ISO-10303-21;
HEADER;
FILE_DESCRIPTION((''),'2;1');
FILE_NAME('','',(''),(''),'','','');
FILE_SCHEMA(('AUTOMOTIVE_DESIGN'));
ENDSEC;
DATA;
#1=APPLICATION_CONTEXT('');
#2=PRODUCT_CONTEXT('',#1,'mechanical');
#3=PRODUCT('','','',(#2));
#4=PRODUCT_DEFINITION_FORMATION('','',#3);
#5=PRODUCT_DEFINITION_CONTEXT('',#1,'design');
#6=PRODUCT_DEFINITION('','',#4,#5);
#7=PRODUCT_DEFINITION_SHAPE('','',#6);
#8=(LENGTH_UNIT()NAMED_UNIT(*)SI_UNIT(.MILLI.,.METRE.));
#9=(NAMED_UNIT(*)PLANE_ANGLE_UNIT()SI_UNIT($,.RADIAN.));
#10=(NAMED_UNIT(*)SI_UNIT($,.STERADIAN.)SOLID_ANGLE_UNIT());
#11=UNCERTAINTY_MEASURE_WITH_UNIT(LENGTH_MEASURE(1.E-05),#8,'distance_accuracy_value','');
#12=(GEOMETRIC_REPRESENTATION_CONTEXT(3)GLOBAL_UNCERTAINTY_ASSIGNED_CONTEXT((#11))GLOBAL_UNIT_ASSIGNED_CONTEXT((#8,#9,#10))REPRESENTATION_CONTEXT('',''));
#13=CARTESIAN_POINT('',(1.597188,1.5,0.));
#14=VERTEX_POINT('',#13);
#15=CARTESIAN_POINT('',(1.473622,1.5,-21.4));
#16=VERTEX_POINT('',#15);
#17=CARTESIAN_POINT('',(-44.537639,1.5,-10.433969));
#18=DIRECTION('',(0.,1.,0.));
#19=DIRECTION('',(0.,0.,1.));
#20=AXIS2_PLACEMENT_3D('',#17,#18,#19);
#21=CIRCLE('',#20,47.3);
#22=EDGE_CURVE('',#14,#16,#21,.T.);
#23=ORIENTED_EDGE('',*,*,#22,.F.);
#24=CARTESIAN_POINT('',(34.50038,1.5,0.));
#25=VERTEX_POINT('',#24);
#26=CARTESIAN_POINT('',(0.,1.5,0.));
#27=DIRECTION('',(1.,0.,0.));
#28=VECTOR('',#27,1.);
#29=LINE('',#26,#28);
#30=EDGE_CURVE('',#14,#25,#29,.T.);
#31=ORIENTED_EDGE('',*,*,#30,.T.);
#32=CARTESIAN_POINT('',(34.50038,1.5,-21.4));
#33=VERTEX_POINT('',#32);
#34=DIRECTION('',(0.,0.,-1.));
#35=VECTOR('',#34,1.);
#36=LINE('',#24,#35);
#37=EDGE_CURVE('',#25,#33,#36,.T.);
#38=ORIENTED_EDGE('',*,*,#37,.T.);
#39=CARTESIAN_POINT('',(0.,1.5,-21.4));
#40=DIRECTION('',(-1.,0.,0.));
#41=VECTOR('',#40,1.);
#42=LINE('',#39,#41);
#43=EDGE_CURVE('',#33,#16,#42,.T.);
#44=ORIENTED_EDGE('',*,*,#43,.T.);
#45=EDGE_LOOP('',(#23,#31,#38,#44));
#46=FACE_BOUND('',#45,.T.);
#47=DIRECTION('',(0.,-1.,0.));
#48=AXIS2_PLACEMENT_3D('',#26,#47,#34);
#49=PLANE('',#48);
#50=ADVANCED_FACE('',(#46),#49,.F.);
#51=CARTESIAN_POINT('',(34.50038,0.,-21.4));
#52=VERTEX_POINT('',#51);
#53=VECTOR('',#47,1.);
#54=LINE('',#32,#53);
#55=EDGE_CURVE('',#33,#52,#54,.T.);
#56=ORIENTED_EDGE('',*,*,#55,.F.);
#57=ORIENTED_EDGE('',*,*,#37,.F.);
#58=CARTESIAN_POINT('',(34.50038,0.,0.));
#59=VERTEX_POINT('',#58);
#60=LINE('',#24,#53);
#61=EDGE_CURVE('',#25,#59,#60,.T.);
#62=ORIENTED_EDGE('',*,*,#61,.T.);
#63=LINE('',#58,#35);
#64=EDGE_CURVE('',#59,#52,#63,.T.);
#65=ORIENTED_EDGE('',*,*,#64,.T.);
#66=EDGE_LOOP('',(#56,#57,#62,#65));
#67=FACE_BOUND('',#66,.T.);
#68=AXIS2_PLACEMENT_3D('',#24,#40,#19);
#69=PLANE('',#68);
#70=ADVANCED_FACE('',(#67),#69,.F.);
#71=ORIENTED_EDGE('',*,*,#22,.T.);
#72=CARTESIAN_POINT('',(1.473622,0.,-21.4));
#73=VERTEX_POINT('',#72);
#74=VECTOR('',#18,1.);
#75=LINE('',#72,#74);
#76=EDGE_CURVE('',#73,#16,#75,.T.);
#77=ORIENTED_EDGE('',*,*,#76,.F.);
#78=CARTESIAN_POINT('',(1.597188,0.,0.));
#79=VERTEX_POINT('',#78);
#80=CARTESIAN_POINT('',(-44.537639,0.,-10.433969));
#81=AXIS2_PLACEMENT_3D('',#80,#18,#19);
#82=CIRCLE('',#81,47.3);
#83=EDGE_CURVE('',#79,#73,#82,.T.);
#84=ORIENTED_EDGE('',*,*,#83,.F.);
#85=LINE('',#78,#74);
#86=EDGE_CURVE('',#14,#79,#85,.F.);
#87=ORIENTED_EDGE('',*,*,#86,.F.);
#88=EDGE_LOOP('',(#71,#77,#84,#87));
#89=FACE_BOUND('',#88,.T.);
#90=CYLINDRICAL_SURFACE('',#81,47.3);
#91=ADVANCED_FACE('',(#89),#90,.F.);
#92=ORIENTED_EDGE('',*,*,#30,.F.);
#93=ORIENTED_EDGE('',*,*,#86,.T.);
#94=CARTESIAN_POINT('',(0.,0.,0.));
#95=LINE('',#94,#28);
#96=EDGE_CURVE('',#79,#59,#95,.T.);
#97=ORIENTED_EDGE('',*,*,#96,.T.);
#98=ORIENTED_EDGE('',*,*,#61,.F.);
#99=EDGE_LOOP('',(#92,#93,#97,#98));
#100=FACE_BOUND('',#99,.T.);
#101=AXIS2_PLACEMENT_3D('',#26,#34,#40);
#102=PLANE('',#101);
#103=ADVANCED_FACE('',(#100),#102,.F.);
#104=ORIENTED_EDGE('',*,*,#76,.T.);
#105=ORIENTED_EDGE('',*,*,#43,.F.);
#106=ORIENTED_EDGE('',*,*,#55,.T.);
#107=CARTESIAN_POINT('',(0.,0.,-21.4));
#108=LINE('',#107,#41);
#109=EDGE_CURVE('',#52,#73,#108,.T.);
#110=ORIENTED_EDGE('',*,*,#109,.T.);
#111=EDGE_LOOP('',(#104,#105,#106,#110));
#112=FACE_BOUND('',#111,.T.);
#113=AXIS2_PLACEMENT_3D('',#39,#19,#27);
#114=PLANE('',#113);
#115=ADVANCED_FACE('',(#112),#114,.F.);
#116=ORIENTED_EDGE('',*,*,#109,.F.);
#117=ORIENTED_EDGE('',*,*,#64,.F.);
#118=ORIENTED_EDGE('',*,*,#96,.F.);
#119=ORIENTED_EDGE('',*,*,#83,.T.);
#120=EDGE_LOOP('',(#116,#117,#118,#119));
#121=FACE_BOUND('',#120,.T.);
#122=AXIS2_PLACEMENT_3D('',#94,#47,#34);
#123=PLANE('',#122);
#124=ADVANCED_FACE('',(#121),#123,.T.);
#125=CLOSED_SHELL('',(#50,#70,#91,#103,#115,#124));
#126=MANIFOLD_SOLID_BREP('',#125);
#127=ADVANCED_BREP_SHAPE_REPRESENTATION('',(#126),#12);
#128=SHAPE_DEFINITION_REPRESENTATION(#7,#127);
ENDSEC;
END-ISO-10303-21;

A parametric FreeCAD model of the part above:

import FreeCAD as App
import Part
import Sketcher


def add_polygon(sketch, points):
    """Adds a closed chain of lines whose ends are joined by coincident constraints."""
    first, n = sketch.GeometryCount, len(points)
    for a, b in zip(points, points[1:] + points[:1]):
        sketch.addGeometry(Part.LineSegment(App.Vector(*a, 0), App.Vector(*b, 0)), False)
    for i in range(n):
        sketch.addConstraint(Sketcher.Constraint("Coincident", first + i, 2, first + (i + 1) % n, 1))

doc = App.newDocument("Part")
body = doc.addObject("PartDesign::Body", "Body")

# Sketch on XZ plane
sketch1 = body.newObject("Sketcher::SketchObject", "Sketch")
sketch1.AttachmentSupport = (doc.getObject("XZ_Plane"), [""])
sketch1.MapMode = "FlatFace"
add_polygon(sketch1, [(0, -21.4), (0, 0), (34.50038, 0), (34.50038, -21.4)])  # lines 0-3
sketch1.addConstraint([
    Sketcher.Constraint("Vertical", 0),
    Sketcher.Constraint("Horizontal", 1),
    Sketcher.Constraint("Vertical", 2),
    Sketcher.Constraint("Horizontal", 3),
    Sketcher.Constraint("Coincident", 0, 2, -1, 1),
    Sketcher.Constraint("DistanceY", 0, 1, 0, 2, 21.4),
    Sketcher.Constraint("DistanceX", 1, 1, 1, 2, 34.50038),
])
pad1 = body.newObject("PartDesign::Pad", "Pad")
pad1.Profile = sketch1
pad1.Length = 1.5
pad1.Reversed = True

# Sketch on XZ plane
sketch2 = body.newObject("Sketcher::SketchObject", "Sketch001")
sketch2.AttachmentSupport = (doc.getObject("XZ_Plane"), [""])
sketch2.MapMode = "FlatFace"
sketch2.AttachmentOffset = App.Placement(App.Vector(0, 0, -1.5), App.Rotation())
sketch2.addGeometry(Part.Circle(App.Vector(-44.537639, -10.433969, 0), App.Vector(0, 0, 1), 47.3), False)
sketch2.addConstraint([
    Sketcher.Constraint("Diameter", 0, 94.6),
    Sketcher.Constraint("DistanceX", 0, 3, -1, 1, 44.537639),
    Sketcher.Constraint("DistanceY", 0, 3, -1, 1, 10.433969),
])
pocket1 = body.newObject("PartDesign::Pocket", "Pocket")
pocket1.Profile = sketch2
pocket1.Length = 1.5
pocket1.Reversed = True

doc.recompute()
